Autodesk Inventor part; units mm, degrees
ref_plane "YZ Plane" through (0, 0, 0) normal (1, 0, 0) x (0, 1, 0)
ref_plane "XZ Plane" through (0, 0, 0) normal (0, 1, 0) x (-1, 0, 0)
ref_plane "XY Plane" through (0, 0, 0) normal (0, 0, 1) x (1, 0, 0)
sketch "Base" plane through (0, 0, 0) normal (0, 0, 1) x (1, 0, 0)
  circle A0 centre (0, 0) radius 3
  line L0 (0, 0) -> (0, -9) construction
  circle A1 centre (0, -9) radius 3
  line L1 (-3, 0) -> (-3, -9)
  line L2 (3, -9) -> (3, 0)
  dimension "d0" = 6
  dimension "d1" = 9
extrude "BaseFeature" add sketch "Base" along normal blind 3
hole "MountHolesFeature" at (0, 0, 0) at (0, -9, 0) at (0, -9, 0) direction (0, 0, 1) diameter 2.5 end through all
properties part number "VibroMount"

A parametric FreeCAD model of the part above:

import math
import FreeCAD as App
import Part
import Sketcher
from FreeCAD import Vector

doc = App.newDocument("Part")
body = doc.addObject("PartDesign::Body", "Body")

sketch1 = body.newObject("Sketcher::SketchObject", "Sketch")
sketch1.AttachmentSupport = (doc.getObject("XY_Plane"), [""])
sketch1.MapMode = "FlatFace"
sketch1.addGeometry([
    Part.ArcOfCircle(Part.Circle(Vector(0, 0, 0), Vector(0, 0, 1), 3), math.radians(0), math.radians(180)),
    Part.LineSegment(Vector(-3, 0, 0), Vector(-3, -9, 0)),
    Part.ArcOfCircle(Part.Circle(Vector(0, -9, 0), Vector(0, 0, 1), 3), math.radians(180), math.radians(360)),
    Part.LineSegment(Vector(3, -9, 0), Vector(3, 0, 0)),
], False)
sketch1.addConstraint([
    Sketcher.Constraint("Tangent", 0, 2, 1, 1),
    Sketcher.Constraint("Tangent", 1, 2, 2, 1),
    Sketcher.Constraint("Tangent", 2, 2, 3, 1),
    Sketcher.Constraint("Tangent", 3, 2, 0, 1),
    Sketcher.Constraint("Vertical", 1),
    Sketcher.Constraint("Vertical", 3),
    Sketcher.Constraint("Coincident", 0, 3, -1, 1),
    Sketcher.Constraint("Radius", 0, 3.0),
    Sketcher.Constraint("DistanceY", 1, 2, 1, 1, 9.0),
])
pad1 = body.newObject("PartDesign::Pad", "Pad")
pad1.Profile = sketch1
pad1.Length = 3

sketch2 = body.newObject("Sketcher::SketchObject", "Sketch001")
sketch2.AttachmentSupport = (doc.getObject("XY_Plane"), [""])
sketch2.MapMode = "FlatFace"
sketch2.addGeometry([
    Part.Circle(Vector(0, 0, 0), Vector(0, 0, 1), 1.2),
    Part.Circle(Vector(0, -9, 0), Vector(0, 0, 1), 1.2),
    Part.Circle(Vector(0, -9, 0), Vector(0, 0, 1), 1.2),
], False)
sketch2.addConstraint([
    Sketcher.Constraint("Coincident", 0, 3, -1, 1),
    Sketcher.Constraint("Coincident", 2, 3, 1, 3),
    Sketcher.Constraint("Equal", 0, 1),
    Sketcher.Constraint("Equal", 1, 2),
    Sketcher.Constraint("PointOnObject", 1, 3, -2),
    Sketcher.Constraint("Diameter", 0, 2.5),
    Sketcher.Constraint("DistanceY", 1, 3, -1, 1, 9.0),
])
doc.recompute()
hole = body.newObject("PartDesign::Hole", "Hole")
hole.Profile = sketch2
hole.ThreadType = "None"
hole.Diameter = 2.5
hole.DepthType = "ThroughAll"
hole.Reversed = True

doc.recompute()
